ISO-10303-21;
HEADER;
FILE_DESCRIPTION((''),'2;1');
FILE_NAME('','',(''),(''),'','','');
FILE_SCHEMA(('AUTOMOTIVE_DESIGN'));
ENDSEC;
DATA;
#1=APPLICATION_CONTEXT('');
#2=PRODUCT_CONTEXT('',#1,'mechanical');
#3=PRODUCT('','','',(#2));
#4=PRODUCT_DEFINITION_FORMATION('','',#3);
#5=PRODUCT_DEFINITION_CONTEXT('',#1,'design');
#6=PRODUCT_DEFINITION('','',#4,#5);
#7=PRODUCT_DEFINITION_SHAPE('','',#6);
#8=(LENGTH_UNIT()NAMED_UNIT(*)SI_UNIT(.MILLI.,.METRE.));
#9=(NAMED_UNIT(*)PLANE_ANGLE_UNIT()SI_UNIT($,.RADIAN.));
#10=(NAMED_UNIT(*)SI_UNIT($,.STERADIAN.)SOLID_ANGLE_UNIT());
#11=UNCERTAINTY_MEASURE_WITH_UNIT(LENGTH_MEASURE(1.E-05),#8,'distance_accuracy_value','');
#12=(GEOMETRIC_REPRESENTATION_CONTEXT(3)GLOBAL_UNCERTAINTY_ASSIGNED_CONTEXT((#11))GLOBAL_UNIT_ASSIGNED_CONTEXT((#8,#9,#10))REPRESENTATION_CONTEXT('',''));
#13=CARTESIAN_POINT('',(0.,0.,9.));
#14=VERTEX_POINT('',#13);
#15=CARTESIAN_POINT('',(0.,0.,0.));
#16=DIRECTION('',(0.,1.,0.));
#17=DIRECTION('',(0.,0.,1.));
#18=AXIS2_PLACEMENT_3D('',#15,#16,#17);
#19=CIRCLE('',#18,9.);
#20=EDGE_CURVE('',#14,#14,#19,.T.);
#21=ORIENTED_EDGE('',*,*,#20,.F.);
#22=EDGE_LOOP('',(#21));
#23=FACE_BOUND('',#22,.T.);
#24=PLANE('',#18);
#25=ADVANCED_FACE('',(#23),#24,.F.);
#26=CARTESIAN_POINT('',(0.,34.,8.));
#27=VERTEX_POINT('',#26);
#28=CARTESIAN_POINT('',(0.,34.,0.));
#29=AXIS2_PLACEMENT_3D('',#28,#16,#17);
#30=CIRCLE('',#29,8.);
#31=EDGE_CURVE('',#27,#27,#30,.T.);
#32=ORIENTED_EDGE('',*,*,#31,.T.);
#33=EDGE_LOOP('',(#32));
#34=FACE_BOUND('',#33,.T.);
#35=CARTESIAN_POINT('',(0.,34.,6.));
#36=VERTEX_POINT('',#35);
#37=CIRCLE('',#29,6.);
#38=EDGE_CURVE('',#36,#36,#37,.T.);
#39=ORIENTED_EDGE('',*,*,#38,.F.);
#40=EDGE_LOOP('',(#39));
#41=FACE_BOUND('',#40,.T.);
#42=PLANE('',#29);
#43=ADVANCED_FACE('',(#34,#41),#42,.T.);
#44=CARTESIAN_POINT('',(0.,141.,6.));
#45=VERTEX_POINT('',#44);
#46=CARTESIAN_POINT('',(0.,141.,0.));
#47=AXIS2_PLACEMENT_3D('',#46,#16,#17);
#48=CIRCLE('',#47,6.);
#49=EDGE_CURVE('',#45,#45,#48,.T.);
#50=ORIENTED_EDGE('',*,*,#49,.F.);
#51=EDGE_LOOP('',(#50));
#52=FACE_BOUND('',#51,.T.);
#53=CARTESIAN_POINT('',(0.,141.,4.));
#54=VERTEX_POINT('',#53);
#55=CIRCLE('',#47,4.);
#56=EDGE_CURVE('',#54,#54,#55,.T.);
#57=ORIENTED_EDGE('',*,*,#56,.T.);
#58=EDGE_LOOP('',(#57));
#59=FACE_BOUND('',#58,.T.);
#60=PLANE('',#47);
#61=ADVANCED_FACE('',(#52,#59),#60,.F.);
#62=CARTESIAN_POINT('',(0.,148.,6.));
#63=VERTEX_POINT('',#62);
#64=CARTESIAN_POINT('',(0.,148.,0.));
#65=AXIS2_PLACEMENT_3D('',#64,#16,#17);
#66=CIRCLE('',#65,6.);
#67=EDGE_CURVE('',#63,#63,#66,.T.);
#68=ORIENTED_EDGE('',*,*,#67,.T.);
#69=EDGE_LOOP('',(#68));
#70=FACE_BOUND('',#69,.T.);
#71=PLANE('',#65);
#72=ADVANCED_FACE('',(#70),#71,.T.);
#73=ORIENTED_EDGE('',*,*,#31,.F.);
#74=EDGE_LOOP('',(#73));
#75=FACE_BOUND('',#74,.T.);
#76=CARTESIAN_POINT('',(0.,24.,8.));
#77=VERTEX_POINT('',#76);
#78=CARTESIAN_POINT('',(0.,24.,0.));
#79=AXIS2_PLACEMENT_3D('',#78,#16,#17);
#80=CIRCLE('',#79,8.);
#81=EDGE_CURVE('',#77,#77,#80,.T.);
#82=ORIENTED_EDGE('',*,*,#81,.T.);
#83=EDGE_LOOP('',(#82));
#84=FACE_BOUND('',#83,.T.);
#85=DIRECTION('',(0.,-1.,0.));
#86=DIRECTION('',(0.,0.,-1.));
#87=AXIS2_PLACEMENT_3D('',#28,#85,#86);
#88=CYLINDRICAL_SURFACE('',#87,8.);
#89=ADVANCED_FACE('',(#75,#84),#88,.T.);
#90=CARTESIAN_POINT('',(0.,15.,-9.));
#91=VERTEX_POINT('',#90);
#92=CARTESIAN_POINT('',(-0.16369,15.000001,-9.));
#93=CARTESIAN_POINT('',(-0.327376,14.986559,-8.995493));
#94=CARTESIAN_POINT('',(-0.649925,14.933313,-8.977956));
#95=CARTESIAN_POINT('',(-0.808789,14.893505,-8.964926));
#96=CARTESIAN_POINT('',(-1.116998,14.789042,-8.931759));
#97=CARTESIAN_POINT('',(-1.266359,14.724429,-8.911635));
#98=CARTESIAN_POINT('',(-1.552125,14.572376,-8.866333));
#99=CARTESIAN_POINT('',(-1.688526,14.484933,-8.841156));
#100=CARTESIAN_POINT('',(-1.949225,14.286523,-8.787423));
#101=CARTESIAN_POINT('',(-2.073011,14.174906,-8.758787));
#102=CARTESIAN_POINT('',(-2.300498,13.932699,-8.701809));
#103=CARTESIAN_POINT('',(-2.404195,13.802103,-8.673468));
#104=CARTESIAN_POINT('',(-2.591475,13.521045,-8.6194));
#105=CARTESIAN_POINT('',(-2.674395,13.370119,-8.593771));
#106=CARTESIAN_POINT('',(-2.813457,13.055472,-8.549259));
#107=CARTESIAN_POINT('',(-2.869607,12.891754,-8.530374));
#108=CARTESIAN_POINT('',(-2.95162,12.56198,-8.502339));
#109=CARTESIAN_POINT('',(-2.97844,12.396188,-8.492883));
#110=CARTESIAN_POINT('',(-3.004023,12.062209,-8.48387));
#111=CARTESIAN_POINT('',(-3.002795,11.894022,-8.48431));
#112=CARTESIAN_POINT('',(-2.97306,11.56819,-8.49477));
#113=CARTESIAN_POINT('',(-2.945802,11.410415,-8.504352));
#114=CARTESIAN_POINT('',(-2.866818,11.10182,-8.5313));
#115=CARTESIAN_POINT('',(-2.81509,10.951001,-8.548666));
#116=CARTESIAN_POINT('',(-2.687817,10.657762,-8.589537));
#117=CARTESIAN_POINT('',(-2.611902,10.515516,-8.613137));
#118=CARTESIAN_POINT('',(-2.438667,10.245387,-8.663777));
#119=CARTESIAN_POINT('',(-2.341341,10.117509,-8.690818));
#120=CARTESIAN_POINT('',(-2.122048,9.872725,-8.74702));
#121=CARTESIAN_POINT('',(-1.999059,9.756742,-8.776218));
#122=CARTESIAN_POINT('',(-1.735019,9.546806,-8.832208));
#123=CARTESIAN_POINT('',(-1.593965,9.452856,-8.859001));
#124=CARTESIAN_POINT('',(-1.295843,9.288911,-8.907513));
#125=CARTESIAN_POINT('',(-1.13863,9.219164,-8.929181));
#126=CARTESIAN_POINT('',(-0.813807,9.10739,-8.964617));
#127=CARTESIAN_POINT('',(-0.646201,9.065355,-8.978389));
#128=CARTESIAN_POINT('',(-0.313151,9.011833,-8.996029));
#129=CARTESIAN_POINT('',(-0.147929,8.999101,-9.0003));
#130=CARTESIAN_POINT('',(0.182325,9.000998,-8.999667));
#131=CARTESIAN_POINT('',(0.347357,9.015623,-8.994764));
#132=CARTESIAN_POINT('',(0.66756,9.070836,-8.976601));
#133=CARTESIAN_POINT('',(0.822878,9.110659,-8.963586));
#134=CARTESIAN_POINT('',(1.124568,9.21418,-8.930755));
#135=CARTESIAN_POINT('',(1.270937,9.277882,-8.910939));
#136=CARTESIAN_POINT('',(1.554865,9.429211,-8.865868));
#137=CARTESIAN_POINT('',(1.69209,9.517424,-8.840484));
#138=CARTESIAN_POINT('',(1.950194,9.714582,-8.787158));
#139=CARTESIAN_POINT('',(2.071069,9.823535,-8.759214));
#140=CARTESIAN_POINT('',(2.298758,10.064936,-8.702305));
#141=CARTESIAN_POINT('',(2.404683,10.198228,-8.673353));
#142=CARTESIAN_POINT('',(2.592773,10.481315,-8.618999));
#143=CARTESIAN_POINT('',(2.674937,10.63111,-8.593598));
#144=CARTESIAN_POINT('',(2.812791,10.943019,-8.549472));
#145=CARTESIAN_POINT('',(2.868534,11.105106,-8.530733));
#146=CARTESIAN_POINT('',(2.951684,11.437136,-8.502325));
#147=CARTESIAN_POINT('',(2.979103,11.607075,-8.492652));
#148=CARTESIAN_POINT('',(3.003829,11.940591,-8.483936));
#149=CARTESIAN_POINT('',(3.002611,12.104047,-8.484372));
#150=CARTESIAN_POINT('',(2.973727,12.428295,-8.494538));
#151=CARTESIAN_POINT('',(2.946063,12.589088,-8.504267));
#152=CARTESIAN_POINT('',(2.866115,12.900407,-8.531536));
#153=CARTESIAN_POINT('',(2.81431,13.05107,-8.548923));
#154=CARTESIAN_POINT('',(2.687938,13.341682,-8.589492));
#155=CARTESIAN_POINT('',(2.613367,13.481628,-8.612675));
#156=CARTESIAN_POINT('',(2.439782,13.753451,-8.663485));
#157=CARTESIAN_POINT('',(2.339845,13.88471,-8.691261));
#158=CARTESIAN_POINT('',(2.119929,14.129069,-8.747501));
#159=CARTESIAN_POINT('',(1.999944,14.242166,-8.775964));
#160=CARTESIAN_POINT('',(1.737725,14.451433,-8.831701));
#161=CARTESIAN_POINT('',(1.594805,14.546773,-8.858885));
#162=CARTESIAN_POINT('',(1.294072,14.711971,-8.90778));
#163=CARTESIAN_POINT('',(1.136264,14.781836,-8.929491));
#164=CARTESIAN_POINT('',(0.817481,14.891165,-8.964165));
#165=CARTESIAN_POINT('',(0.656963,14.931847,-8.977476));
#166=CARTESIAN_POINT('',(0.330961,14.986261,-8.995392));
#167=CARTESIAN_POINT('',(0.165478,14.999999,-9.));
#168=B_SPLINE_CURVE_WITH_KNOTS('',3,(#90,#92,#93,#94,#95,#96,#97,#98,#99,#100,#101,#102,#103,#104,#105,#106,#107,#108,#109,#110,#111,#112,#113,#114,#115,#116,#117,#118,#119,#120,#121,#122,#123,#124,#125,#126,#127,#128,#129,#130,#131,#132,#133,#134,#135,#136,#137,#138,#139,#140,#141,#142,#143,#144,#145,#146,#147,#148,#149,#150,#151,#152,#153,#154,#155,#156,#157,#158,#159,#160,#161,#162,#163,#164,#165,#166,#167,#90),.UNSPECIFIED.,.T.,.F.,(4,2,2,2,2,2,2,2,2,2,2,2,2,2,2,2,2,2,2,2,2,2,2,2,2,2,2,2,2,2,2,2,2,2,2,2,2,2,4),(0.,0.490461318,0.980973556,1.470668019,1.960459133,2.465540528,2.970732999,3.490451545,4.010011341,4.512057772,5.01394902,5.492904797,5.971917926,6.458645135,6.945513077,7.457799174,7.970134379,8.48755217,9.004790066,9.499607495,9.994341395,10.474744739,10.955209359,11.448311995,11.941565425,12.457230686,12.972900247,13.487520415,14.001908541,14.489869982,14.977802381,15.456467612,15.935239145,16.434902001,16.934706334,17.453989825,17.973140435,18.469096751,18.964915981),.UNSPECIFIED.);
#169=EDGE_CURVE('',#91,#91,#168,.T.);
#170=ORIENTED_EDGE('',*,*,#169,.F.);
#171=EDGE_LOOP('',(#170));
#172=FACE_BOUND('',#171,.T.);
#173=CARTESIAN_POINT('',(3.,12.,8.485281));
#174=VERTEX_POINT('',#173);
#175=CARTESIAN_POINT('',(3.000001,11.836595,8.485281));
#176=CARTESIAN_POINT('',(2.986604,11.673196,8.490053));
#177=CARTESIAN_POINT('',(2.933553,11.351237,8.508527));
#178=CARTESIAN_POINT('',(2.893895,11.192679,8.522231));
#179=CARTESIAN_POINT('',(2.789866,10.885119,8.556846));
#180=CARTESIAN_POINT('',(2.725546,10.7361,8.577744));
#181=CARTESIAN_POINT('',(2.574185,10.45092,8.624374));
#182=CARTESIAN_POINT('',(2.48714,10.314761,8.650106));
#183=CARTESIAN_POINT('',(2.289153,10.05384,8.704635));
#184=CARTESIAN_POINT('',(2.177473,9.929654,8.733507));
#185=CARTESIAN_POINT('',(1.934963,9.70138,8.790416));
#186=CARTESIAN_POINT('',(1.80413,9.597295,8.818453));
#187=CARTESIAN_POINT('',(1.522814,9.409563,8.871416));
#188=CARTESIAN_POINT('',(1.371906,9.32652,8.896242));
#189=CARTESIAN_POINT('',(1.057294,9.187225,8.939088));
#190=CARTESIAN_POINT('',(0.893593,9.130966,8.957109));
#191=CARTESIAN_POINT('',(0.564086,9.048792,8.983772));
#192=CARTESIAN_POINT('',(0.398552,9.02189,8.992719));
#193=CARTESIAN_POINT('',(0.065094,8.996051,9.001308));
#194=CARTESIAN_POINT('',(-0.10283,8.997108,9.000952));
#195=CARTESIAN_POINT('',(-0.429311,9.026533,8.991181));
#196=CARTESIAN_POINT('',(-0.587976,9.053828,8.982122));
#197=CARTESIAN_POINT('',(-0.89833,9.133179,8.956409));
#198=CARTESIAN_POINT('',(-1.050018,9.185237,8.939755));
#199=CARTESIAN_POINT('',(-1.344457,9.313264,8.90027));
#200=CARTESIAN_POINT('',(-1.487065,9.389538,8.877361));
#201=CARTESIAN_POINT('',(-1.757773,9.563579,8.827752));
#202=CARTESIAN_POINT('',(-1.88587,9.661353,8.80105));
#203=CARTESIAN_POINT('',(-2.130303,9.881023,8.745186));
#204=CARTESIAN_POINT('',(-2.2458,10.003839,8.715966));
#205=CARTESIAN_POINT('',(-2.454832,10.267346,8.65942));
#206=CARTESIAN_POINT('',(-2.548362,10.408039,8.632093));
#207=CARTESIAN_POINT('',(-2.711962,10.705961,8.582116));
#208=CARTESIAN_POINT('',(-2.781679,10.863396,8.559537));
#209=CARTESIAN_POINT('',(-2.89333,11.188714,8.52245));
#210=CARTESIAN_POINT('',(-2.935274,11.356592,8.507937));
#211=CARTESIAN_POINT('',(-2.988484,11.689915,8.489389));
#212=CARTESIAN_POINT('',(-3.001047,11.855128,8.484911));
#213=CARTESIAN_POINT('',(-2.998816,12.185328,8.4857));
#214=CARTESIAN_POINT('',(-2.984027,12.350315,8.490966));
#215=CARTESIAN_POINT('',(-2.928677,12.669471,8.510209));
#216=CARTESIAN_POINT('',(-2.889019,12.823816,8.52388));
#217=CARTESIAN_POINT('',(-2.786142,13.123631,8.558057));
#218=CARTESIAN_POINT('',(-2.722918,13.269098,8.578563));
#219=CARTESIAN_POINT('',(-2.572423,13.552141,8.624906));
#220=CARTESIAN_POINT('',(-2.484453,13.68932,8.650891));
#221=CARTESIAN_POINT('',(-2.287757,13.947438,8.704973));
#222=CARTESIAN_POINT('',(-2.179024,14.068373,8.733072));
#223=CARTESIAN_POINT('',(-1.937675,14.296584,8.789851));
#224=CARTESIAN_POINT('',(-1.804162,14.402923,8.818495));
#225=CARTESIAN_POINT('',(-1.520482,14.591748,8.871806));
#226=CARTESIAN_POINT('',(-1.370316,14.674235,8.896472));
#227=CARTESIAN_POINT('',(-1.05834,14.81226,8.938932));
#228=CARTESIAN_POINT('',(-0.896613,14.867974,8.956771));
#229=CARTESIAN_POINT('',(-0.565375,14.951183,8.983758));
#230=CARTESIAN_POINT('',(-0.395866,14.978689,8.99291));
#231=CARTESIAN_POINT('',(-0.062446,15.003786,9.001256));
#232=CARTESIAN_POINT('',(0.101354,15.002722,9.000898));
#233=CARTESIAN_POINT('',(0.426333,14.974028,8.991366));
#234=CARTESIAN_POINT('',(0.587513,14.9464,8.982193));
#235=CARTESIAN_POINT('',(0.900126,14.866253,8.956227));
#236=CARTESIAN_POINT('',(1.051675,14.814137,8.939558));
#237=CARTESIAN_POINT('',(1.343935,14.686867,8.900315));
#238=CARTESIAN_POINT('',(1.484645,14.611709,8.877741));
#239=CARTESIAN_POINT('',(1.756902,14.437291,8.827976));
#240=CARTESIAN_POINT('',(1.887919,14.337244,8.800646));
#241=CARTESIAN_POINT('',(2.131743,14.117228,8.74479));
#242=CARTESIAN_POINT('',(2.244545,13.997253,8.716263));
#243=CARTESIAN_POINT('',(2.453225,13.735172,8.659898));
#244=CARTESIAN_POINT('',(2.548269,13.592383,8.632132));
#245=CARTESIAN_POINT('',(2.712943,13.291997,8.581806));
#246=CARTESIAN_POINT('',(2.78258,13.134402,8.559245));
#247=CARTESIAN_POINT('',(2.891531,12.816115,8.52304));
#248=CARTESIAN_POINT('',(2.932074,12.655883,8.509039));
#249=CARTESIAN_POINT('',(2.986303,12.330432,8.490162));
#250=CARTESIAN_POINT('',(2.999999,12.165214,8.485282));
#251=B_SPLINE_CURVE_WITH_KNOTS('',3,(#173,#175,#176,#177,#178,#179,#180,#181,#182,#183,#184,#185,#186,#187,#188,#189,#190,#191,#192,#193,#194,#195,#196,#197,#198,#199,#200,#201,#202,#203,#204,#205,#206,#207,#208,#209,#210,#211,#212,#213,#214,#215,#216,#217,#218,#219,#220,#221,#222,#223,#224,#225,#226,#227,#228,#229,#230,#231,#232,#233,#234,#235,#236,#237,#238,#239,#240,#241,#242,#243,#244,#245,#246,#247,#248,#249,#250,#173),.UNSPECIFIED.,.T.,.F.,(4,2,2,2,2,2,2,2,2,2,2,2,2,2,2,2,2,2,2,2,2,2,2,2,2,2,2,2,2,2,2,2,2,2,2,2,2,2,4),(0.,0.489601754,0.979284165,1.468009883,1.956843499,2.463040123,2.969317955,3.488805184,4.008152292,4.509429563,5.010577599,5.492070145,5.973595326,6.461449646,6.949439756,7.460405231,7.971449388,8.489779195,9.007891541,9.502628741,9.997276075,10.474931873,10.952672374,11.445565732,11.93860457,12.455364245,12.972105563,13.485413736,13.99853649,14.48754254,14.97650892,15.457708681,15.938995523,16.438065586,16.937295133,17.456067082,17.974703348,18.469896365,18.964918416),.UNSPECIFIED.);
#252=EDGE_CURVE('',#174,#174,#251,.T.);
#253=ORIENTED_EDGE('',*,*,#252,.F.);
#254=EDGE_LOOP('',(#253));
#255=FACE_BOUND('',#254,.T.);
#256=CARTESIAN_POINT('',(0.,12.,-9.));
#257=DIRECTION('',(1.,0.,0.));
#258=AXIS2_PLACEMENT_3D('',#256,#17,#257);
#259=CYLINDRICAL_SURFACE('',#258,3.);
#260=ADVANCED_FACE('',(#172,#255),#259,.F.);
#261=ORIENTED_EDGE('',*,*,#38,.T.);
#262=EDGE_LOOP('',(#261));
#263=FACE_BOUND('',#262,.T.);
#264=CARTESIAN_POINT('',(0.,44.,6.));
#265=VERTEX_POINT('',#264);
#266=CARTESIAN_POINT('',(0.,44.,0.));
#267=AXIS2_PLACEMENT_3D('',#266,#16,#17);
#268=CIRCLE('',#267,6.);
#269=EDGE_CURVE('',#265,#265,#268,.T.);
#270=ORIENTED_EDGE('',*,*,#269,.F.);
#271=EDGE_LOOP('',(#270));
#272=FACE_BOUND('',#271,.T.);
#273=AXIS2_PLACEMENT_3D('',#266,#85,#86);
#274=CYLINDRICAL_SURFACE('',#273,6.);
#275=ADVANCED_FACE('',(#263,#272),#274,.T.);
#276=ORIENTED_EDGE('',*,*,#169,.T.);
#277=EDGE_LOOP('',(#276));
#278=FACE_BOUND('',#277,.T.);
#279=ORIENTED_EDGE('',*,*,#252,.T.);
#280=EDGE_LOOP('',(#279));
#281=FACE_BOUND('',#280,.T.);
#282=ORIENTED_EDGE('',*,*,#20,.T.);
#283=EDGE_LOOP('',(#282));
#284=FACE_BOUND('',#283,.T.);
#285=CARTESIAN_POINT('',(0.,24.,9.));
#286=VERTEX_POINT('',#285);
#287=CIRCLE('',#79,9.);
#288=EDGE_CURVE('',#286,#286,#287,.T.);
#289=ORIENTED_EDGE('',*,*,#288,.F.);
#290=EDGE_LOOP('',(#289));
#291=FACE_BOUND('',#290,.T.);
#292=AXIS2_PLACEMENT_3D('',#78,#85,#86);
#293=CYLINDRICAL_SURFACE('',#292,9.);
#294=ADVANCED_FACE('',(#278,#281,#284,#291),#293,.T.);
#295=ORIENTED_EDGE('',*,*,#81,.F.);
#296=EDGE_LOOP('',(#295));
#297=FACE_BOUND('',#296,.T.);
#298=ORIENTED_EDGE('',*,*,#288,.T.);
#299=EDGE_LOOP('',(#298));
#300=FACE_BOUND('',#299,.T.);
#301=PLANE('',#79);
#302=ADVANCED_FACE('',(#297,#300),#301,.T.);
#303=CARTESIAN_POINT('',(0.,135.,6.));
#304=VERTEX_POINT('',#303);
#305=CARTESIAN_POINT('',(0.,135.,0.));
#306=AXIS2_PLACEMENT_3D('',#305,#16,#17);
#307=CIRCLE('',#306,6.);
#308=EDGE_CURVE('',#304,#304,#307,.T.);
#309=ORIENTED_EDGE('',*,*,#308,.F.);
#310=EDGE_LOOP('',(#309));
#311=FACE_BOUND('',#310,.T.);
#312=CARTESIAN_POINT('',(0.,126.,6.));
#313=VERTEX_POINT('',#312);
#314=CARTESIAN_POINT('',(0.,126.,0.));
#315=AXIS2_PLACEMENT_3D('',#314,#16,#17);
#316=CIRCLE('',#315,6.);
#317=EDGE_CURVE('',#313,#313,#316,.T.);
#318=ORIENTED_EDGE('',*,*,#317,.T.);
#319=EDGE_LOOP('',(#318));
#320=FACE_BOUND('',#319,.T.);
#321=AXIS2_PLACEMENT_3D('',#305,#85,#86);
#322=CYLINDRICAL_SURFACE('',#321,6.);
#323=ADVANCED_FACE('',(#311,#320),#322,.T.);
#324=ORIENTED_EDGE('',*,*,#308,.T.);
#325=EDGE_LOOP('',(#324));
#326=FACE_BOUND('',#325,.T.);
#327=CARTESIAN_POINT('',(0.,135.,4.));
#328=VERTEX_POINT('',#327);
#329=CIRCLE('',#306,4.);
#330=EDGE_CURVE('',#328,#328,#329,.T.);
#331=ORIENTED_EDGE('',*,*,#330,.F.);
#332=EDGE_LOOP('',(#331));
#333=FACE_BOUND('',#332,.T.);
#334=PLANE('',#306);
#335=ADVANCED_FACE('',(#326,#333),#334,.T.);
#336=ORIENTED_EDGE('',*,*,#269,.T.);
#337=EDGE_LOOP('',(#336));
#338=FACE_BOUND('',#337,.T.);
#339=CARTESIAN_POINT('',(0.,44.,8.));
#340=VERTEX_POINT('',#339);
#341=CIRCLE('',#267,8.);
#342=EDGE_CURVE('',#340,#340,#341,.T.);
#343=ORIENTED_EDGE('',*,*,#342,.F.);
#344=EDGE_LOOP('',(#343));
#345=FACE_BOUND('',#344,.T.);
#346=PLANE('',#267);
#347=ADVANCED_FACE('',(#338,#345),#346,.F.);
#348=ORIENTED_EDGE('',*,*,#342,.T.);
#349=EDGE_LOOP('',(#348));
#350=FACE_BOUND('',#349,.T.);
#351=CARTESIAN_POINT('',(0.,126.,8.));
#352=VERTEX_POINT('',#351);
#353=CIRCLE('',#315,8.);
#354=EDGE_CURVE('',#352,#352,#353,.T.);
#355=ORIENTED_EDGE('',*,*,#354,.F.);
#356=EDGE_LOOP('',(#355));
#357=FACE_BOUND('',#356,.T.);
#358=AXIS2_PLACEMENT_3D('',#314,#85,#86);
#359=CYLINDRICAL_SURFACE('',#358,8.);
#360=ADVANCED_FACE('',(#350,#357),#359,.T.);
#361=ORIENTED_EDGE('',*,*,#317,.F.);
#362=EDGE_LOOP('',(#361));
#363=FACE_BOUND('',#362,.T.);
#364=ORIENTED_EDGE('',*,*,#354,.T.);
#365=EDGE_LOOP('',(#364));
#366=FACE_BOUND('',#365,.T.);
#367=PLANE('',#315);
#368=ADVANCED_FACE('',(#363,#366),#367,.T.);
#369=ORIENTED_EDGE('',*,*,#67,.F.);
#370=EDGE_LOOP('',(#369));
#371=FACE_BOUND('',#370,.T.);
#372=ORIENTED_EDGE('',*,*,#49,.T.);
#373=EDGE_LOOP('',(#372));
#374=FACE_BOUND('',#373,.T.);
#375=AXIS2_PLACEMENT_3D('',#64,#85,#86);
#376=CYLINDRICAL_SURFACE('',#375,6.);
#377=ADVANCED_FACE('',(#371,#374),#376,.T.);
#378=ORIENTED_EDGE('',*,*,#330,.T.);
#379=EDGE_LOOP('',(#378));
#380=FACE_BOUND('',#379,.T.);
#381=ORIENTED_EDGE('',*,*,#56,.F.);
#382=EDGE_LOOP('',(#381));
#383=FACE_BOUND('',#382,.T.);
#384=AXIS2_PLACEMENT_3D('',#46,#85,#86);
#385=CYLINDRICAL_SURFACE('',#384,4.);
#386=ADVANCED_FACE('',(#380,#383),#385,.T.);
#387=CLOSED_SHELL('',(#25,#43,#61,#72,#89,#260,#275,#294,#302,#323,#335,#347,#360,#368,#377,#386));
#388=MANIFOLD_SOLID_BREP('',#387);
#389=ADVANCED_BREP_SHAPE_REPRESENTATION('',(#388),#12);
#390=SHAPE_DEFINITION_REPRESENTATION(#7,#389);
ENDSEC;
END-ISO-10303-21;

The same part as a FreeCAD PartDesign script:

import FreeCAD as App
import Part
import Sketcher

V = App.Vector
Q = App.Units.Quantity

doc = App.newDocument("Part")
body = doc.addObject("PartDesign::Body", "Body")

# Sketch on XZ plane
sketch1 = body.newObject("Sketcher::SketchObject", "Sketch")
sketch1.AttachmentSupport = (doc.getObject("XZ_Plane"), [""])
sketch1.MapMode = "FlatFace"
sketch1.addGeometry(Part.Circle(V(0, 0, 0), V(0, 0, 1), 9), False)
sketch1.addConstraint(Sketcher.Constraint("Coincident", 0, 3, -1, 1))
sketch1.addConstraint(Sketcher.Constraint("Diameter", 0, Q("18 mm")))
pad1 = body.newObject("PartDesign::Pad", "Pad")
pad1.Profile = sketch1
pad1.Length = 24
pad1.Reversed = True

# Sketch on XZ plane
sketch2 = body.newObject("Sketcher::SketchObject", "Sketch001")
sketch2.AttachmentSupport = (doc.getObject("XZ_Plane"), [""])
sketch2.MapMode = "FlatFace"
sketch2.AttachmentOffset = App.Placement(V(0, 0, -24), App.Rotation())
sketch2.addGeometry(Part.Circle(V(0, 0, 0), V(0, 0, 1), 8), False)
sketch2.addConstraint(Sketcher.Constraint("Coincident", 0, 3, -1, 1))
sketch2.addConstraint(Sketcher.Constraint("Diameter", 0, Q("16 mm")))
pad2 = body.newObject("PartDesign::Pad", "Pad001")
pad2.Profile = sketch2
pad2.Length = 10
pad2.Reversed = True

# Sketch on XZ plane
sketch3 = body.newObject("Sketcher::SketchObject", "Sketch002")
sketch3.AttachmentSupport = (doc.getObject("XZ_Plane"), [""])
sketch3.MapMode = "FlatFace"
sketch3.AttachmentOffset = App.Placement(V(0, 0, -34), App.Rotation())
sketch3.addGeometry(Part.Circle(V(0, 0, 0), V(0, 0, 1), 6), False)
sketch3.addConstraint(Sketcher.Constraint("Coincident", 0, 3, -1, 1))
sketch3.addConstraint(Sketcher.Constraint("Diameter", 0, Q("12 mm")))
pad3 = body.newObject("PartDesign::Pad", "Pad002")
pad3.Profile = sketch3
pad3.Length = 10
pad3.Reversed = True

# Sketch on XZ plane
sketch4 = body.newObject("Sketcher::SketchObject", "Sketch003")
sketch4.AttachmentSupport = (doc.getObject("XZ_Plane"), [""])
sketch4.MapMode = "FlatFace"
sketch4.AttachmentOffset = App.Placement(V(0, 0, -44), App.Rotation())
sketch4.addGeometry(Part.Circle(V(0, 0, 0), V(0, 0, 1), 8), False)
sketch4.addConstraint(Sketcher.Constraint("Coincident", 0, 3, -1, 1))
sketch4.addConstraint(Sketcher.Constraint("Diameter", 0, Q("16 mm")))
pad4 = body.newObject("PartDesign::Pad", "Pad003")
pad4.Profile = sketch4
pad4.Length = 82
pad4.Reversed = True

# Sketch on XZ plane
sketch5 = body.newObject("Sketcher::SketchObject", "Sketch004")
sketch5.AttachmentSupport = (doc.getObject("XZ_Plane"), [""])
sketch5.MapMode = "FlatFace"
sketch5.AttachmentOffset = App.Placement(V(0, 0, -126), App.Rotation())
sketch5.addGeometry(Part.Circle(V(0, 0, 0), V(0, 0, 1), 6), False)
sketch5.addConstraint(Sketcher.Constraint("Coincident", 0, 3, -1, 1))
sketch5.addConstraint(Sketcher.Constraint("Diameter", 0, Q("12 mm")))
pad5 = body.newObject("PartDesign::Pad", "Pad004")
pad5.Profile = sketch5
pad5.Length = 9
pad5.Reversed = True

# Sketch on XZ plane
sketch6 = body.newObject("Sketcher::SketchObject", "Sketch005")
sketch6.AttachmentSupport = (doc.getObject("XZ_Plane"), [""])
sketch6.MapMode = "FlatFace"
sketch6.AttachmentOffset = App.Placement(V(0, 0, -135), App.Rotation())
sketch6.addGeometry(Part.Circle(V(0, 0, 0), V(0, 0, 1), 4), False)
sketch6.addConstraint(Sketcher.Constraint("Coincident", 0, 3, -1, 1))
sketch6.addConstraint(Sketcher.Constraint("Diameter", 0, Q("8 mm")))
pad6 = body.newObject("PartDesign::Pad", "Pad005")
pad6.Profile = sketch6
pad6.Length = 6
pad6.Reversed = True

# Sketch on XZ plane
sketch7 = body.newObject("Sketcher::SketchObject", "Sketch006")
sketch7.AttachmentSupport = (doc.getObject("XZ_Plane"), [""])
sketch7.MapMode = "FlatFace"
sketch7.AttachmentOffset = App.Placement(V(0, 0, -141), App.Rotation())
sketch7.addGeometry(Part.Circle(V(0, 0, 0), V(0, 0, 1), 6), False)
sketch7.addConstraint(Sketcher.Constraint("Coincident", 0, 3, -1, 1))
sketch7.addConstraint(Sketcher.Constraint("Diameter", 0, Q("12 mm")))
pad7 = body.newObject("PartDesign::Pad", "Pad006")
pad7.Profile = sketch7
pad7.Length = 7
pad7.Reversed = True

# Sketch on XY plane
sketch8 = body.newObject("Sketcher::SketchObject", "Sketch007")
sketch8.AttachmentSupport = (doc.getObject("XY_Plane"), [""])
sketch8.MapMode = "FlatFace"
sketch8.addGeometry(Part.Circle(V(0, 12, 0), V(0, 0, 1), 3), False)
sketch8.addConstraint(Sketcher.Constraint("PointOnObject", 0, 3, -2))
sketch8.addConstraint(Sketcher.Constraint("Diameter", 0, Q("6 mm")))
sketch8.addConstraint(Sketcher.Constraint("DistanceY", -1, 1, 0, 3, Q("12 mm")))
pocket1 = body.newObject("PartDesign::Pocket", "Pocket")
pocket1.Profile = sketch8
pocket1.Type = "ThroughAll"
pocket1.Midplane = True

doc.recompute()
